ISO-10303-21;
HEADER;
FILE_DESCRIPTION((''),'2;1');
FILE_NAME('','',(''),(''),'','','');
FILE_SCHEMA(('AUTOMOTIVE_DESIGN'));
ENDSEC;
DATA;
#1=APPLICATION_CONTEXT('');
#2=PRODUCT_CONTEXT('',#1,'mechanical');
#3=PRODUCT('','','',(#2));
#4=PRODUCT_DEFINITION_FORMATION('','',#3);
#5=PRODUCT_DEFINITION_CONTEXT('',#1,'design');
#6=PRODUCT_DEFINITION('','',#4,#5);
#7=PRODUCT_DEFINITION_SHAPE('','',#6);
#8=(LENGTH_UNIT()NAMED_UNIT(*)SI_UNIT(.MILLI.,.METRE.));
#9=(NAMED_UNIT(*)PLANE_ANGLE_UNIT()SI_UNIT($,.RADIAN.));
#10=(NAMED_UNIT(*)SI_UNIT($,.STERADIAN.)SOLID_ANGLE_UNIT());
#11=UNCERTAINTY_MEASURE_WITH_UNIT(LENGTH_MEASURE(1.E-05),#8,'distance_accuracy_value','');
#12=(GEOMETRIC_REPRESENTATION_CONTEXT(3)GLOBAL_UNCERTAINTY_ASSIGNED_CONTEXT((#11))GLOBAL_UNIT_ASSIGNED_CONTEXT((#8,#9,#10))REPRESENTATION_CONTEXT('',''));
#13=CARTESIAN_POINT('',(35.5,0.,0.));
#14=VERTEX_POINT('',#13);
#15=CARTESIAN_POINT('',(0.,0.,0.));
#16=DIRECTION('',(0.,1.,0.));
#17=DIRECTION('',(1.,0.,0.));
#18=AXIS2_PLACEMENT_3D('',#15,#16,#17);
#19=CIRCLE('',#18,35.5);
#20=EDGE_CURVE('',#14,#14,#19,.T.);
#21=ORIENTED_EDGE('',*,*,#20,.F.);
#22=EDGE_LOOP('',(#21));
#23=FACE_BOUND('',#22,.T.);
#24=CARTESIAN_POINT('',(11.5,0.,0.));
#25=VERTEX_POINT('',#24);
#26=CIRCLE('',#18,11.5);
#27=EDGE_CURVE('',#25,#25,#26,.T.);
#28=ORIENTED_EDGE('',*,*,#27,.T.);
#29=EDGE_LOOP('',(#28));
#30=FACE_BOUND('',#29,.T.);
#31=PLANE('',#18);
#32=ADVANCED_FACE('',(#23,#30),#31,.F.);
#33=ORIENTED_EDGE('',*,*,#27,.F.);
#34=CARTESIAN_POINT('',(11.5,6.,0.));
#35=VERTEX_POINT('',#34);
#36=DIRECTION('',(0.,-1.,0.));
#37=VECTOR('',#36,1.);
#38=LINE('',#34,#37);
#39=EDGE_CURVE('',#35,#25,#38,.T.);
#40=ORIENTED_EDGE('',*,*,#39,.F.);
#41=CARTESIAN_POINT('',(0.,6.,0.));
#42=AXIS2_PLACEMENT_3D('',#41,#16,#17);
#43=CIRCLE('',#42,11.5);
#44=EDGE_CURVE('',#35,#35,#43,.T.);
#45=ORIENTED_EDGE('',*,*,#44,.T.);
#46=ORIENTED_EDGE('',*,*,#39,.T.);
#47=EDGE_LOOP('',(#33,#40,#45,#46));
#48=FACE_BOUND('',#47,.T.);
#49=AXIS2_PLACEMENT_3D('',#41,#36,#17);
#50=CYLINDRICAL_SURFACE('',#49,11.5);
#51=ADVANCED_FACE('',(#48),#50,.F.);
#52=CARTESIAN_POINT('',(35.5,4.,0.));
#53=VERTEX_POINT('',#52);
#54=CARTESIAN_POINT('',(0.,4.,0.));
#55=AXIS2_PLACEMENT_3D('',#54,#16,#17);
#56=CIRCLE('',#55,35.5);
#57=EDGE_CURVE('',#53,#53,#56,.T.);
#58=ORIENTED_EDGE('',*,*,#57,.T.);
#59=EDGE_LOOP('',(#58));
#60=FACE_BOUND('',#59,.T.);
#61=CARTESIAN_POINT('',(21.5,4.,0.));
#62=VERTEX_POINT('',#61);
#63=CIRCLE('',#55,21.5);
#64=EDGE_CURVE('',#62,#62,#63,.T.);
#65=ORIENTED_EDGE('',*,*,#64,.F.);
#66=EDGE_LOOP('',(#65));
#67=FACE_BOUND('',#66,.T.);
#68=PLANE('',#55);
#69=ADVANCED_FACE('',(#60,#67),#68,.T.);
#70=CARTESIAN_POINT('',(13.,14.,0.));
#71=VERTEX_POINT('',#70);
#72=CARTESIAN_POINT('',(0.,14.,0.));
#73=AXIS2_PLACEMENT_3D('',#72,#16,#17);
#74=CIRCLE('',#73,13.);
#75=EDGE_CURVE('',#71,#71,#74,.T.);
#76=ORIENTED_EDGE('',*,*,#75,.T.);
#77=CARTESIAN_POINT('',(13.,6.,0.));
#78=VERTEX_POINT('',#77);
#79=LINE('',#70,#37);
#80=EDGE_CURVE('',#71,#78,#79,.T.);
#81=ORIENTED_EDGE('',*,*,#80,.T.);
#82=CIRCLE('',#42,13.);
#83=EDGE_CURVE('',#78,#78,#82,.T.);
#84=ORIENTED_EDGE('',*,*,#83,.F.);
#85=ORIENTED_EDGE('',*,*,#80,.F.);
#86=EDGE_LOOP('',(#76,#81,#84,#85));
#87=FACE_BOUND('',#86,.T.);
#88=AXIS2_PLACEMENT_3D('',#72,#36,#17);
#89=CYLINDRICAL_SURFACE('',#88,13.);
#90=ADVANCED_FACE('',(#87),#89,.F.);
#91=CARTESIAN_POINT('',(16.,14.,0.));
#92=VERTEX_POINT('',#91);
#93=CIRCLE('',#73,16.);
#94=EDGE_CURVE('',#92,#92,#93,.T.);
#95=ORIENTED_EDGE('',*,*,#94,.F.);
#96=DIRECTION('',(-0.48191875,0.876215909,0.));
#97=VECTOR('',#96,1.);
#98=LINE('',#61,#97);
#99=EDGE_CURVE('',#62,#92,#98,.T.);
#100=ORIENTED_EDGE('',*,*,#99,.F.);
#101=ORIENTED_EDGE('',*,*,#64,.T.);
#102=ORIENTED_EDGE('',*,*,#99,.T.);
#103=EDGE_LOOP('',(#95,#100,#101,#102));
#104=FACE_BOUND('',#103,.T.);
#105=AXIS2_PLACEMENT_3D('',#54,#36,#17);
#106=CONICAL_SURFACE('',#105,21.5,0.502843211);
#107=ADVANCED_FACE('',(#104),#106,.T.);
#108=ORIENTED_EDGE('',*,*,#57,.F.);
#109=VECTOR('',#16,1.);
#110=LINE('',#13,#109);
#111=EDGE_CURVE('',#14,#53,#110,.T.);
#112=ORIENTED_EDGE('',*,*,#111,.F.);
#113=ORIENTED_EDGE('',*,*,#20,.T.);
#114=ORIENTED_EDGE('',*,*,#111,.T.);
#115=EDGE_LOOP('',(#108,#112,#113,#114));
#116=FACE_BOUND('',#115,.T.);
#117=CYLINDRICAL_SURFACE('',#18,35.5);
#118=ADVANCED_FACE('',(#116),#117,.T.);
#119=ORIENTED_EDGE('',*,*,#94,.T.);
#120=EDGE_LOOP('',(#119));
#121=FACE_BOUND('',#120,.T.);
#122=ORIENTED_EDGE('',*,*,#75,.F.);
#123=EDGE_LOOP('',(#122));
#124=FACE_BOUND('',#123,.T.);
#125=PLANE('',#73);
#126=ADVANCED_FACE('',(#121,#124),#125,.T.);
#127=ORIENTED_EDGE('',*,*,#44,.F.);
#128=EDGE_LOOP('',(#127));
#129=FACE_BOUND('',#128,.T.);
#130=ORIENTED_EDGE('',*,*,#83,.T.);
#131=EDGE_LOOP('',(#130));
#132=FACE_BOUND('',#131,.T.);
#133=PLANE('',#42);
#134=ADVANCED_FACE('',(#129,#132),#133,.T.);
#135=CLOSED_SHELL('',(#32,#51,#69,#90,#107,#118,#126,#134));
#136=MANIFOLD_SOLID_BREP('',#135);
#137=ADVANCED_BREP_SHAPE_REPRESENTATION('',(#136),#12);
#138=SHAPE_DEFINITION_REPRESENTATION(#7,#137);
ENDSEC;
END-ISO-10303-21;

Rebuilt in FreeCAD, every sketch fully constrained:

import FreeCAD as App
import Part
import Sketcher
from FreeCAD import Vector
Q = App.Units.Quantity


def add_polygon(sketch, points):
    """Adds a closed chain of lines whose ends are joined by coincident constraints."""
    first, n = sketch.GeometryCount, len(points)
    for a, b in zip(points, points[1:] + points[:1]):
        sketch.addGeometry(Part.LineSegment(App.Vector(*a, 0), App.Vector(*b, 0)), False)
    for i in range(n):
        sketch.addConstraint(Sketcher.Constraint("Coincident", first + i, 2, first + (i + 1) % n, 1))

doc = App.newDocument("Part")
body = doc.addObject("PartDesign::Body", "Body")

# Sketch on XY plane
sketch1 = doc.addObject("Sketcher::SketchObject", "Sketch")
body.addObject(sketch1)
sketch1.AttachmentSupport = (doc.XY_Plane, [""])
sketch1.MapMode = "FlatFace"
add_polygon(sketch1, [(11.5, 6), (11.5, 0), (35.5, 0), (35.5, 4), (21.5, 4), (16, 14), (13, 14), (13, 6)])  # lines 0-7
sketch1.addConstraint(Sketcher.Constraint("Vertical", 0))
sketch1.addConstraint(Sketcher.Constraint("Horizontal", 1))
sketch1.addConstraint(Sketcher.Constraint("Vertical", 2))
sketch1.addConstraint(Sketcher.Constraint("Horizontal", 3))
sketch1.addConstraint(Sketcher.Constraint("Horizontal", 5))
sketch1.addConstraint(Sketcher.Constraint("Vertical", 6))
sketch1.addConstraint(Sketcher.Constraint("Horizontal", 7))
sketch1.addConstraint(Sketcher.Constraint("PointOnObject", 0, 2, -1))
sketch1.addConstraint(Sketcher.Constraint("DistanceX", 1, 1, 1, 2, Q("24 mm")))
sketch1.addConstraint(Sketcher.Constraint("DistanceX", 3, 2, 3, 1, Q("14 mm")))
sketch1.addConstraint(Sketcher.Constraint("DistanceX", 5, 2, 5, 1, Q("3 mm")))
sketch1.addConstraint(Sketcher.Constraint("DistanceY", 0, 2, 0, 1, Q("6 mm")))
sketch1.addConstraint(Sketcher.Constraint("DistanceY", 2, 1, 2, 2, Q("4 mm")))
sketch1.addConstraint(Sketcher.Constraint("DistanceY", 6, 2, 6, 1, Q("8 mm")))
sketch1.addConstraint(Sketcher.Constraint("DistanceX", 7, 2, 7, 1, Q("1.5 mm")))
sketch1.addConstraint(Sketcher.Constraint("DistanceX", -1, 1, 5, 2, Q("13 mm")))
revolution = doc.addObject("PartDesign::Revolution", "Revolution")
body.addObject(revolution)
revolution.Profile = sketch1
revolution.ReferenceAxis = (sketch1, ["V_Axis"])
revolution.Angle = 360

doc.recompute()
